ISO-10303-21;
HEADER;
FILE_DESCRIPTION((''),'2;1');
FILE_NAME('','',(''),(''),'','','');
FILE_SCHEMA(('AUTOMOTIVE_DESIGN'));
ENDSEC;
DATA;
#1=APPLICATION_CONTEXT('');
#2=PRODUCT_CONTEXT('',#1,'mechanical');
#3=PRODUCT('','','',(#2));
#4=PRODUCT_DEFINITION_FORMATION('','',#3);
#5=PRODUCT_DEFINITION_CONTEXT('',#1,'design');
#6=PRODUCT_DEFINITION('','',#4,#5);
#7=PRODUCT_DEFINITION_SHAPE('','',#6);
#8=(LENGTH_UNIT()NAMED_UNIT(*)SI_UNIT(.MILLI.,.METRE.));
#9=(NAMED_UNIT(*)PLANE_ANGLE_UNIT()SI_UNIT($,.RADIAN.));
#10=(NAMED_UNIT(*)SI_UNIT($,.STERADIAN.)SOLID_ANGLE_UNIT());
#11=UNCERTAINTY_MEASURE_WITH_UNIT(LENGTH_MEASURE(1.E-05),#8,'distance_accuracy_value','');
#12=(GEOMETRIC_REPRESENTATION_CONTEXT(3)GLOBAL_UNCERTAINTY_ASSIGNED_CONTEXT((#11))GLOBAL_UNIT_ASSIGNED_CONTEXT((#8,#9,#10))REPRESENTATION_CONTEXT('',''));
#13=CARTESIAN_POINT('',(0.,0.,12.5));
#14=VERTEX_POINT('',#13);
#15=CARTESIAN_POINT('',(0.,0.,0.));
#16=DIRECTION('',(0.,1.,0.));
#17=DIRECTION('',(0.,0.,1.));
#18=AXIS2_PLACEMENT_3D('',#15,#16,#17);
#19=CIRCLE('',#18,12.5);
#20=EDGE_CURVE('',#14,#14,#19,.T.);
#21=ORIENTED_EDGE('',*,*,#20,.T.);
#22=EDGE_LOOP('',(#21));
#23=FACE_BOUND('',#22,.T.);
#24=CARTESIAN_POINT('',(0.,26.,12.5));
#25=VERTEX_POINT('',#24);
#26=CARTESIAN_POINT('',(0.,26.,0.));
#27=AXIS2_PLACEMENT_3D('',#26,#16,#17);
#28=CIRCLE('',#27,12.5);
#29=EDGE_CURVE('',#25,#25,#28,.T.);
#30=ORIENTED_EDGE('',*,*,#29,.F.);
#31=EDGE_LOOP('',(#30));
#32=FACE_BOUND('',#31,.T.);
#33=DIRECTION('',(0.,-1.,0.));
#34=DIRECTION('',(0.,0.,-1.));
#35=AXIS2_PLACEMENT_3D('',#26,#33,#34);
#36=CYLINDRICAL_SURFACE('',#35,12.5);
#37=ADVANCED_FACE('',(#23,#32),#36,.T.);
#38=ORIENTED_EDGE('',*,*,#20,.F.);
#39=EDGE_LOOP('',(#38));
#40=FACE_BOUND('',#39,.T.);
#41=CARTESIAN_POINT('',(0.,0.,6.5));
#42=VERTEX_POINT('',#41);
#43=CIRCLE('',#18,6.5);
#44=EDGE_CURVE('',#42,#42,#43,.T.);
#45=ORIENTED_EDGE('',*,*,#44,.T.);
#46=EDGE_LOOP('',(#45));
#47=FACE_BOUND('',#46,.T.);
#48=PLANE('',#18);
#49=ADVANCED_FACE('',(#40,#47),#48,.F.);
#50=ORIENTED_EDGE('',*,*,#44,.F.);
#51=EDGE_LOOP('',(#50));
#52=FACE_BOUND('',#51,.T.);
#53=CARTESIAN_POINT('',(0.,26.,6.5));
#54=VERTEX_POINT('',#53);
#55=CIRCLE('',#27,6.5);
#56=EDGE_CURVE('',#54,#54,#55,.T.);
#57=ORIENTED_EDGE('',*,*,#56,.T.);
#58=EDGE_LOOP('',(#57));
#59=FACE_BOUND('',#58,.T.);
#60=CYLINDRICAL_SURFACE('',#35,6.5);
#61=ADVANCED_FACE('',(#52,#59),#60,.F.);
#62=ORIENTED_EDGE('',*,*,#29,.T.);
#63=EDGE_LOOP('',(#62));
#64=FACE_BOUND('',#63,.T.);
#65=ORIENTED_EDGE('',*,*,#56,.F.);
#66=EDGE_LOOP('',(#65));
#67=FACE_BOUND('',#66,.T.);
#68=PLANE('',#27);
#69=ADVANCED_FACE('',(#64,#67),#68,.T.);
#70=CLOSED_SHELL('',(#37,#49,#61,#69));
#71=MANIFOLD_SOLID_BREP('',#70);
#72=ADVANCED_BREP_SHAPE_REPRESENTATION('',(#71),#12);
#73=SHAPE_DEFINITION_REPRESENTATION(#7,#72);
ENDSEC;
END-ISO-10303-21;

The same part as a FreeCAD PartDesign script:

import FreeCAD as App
import Part
import Sketcher

doc = App.newDocument("Part")
body = doc.addObject("PartDesign::Body", "Body")

# Sketch on XZ plane
sketch1 = body.newObject("Sketcher::SketchObject", "Sketch")
sketch1.AttachmentSupport = (doc.getObject("XZ_Plane"), [""])
sketch1.MapMode = "FlatFace"
sketch1.addGeometry([
    Part.Circle(App.Vector(0, 0, 0), App.Vector(0, 0, 1), 12),
    Part.Circle(App.Vector(0, 0, 0), App.Vector(0, 0, 1), 6),
], False)
sketch1.addConstraint([
    Sketcher.Constraint("Coincident", 0, 3, -1, 1),
    Sketcher.Constraint("Coincident", 1, 3, -1, 1),
    Sketcher.Constraint("Diameter", 0, 25.0),
    Sketcher.Constraint("Diameter", 1, 13.0),
])
pad1 = body.newObject("PartDesign::Pad", "Pad")
pad1.Profile = sketch1
pad1.Length = 26
pad1.Reversed = True

doc.recompute()
